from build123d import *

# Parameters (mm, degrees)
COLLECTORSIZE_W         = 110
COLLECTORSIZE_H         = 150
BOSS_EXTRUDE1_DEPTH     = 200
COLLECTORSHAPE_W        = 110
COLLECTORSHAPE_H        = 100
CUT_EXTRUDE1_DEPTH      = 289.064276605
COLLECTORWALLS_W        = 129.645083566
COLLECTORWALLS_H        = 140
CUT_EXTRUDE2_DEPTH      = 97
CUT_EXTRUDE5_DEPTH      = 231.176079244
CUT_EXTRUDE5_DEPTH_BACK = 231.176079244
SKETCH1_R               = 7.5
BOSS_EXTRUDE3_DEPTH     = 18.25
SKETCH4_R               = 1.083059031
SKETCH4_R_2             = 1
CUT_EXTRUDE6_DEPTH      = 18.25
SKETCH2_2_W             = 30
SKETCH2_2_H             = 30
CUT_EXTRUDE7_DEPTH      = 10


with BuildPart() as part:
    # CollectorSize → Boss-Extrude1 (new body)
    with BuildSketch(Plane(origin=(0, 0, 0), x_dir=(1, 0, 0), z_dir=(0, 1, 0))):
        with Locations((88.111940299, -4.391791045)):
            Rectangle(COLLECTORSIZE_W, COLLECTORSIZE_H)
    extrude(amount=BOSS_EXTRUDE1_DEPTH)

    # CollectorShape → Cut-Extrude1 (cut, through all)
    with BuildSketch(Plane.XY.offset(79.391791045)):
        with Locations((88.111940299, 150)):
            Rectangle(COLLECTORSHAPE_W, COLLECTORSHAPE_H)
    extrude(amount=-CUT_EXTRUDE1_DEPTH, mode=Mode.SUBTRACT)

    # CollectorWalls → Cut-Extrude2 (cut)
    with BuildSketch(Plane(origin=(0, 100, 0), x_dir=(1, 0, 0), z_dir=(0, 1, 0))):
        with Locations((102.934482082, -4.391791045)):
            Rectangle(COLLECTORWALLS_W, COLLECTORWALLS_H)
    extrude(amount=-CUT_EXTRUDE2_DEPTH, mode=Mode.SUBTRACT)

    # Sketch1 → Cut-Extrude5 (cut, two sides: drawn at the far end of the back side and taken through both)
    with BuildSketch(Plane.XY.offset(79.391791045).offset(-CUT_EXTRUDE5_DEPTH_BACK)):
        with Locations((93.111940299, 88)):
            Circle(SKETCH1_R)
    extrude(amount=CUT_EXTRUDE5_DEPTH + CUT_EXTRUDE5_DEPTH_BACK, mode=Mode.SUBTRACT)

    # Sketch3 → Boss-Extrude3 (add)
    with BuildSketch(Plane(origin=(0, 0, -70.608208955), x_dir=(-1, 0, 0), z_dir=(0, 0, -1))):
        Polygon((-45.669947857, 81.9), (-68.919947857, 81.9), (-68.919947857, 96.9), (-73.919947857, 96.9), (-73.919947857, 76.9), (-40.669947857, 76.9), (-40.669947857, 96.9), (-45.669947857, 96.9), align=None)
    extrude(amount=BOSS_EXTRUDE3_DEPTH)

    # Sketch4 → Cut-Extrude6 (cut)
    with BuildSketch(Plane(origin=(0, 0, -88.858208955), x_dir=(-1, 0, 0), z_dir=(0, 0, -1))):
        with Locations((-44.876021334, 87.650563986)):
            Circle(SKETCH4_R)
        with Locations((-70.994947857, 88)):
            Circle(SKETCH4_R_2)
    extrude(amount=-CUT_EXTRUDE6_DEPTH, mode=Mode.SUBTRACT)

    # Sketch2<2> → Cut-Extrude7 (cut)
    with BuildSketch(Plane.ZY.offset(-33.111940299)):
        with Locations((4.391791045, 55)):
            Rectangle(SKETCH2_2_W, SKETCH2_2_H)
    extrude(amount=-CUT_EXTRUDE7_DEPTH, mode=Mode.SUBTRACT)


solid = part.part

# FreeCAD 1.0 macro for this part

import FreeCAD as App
import Part
import Sketcher
from FreeCAD import Vector
Q = App.Units.Quantity


def add_polygon(sketch, points):
    """Adds a closed chain of lines whose ends are joined by coincident constraints."""
    first, n = sketch.GeometryCount, len(points)
    for a, b in zip(points, points[1:] + points[:1]):
        sketch.addGeometry(Part.LineSegment(App.Vector(*a, 0), App.Vector(*b, 0)), False)
    for i in range(n):
        sketch.addConstraint(Sketcher.Constraint("Coincident", first + i, 2, first + (i + 1) % n, 1))

doc = App.newDocument("Part")
body = doc.addObject("PartDesign::Body", "Body")

# Sketch on XZ plane
sketch1 = body.newObject("Sketcher::SketchObject", "Sketch")
sketch1.AttachmentSupport = (doc.getObject("XZ_Plane"), [""])
sketch1.MapMode = "FlatFace"
add_polygon(sketch1, [(33, -71), (33, 79), (143, 79), (143, -71)])  # lines 0-3
sketch1.addConstraint([
    Sketcher.Constraint("Vertical", 0),
    Sketcher.Constraint("Horizontal", 1),
    Sketcher.Constraint("Vertical", 2),
    Sketcher.Constraint("Horizontal", 3),
    Sketcher.Constraint("DistanceX", 1, 1, 1, 2, Q("110 mm")),
    Sketcher.Constraint("DistanceY", 0, 1, 0, 2, Q("150 mm")),
    Sketcher.Constraint("DistanceX", -1, 1, 0, 2, Q("33.11194 mm")),
    Sketcher.Constraint("DistanceY", -1, 1, 0, 2, Q("79.391791 mm")),
])
pad1 = body.newObject("PartDesign::Pad", "Pad")
pad1.Profile = sketch1
pad1.Length = 200
pad1.Reversed = True

# Sketch on XY plane
sketch2 = body.newObject("Sketcher::SketchObject", "Sketch001")
sketch2.AttachmentSupport = (doc.getObject("XY_Plane"), [""])
sketch2.MapMode = "FlatFace"
sketch2.AttachmentOffset = App.Placement(Vector(0, 0, 79.391791), App.Rotation())
add_polygon(sketch2, [(33, 200), (33, 100), (143, 100), (143, 200)])  # lines 0-3
sketch2.addConstraint([
    Sketcher.Constraint("Vertical", 0),
    Sketcher.Constraint("Horizontal", 1),
    Sketcher.Constraint("Vertical", 2),
    Sketcher.Constraint("Horizontal", 3),
    Sketcher.Constraint("DistanceX", 1, 1, 1, 2, Q("110 mm")),
    Sketcher.Constraint("DistanceY", 0, 2, 0, 1, Q("100 mm")),
    Sketcher.Constraint("DistanceY", -1, 1, 0, 2, Q("100 mm")),
    Sketcher.Constraint("DistanceX", -1, 1, 0, 2, Q("33.11194 mm")),
])
pocket1 = body.newObject("PartDesign::Pocket", "Pocket")
pocket1.Profile = sketch2
pocket1.Type = "ThroughAll"

# Sketch on XZ plane
sketch3 = body.newObject("Sketcher::SketchObject", "Sketch002")
sketch3.AttachmentSupport = (doc.getObject("XZ_Plane"), [""])
sketch3.MapMode = "FlatFace"
sketch3.AttachmentOffset = App.Placement(Vector(0, 0, -100), App.Rotation())
add_polygon(sketch3, [(38, -66), (38, 74), (168, 74), (168, -66)])  # lines 0-3
sketch3.addConstraint([
    Sketcher.Constraint("Vertical", 0),
    Sketcher.Constraint("Horizontal", 1),
    Sketcher.Constraint("Vertical", 2),
    Sketcher.Constraint("Horizontal", 3),
    Sketcher.Constraint("DistanceY", 0, 1, 0, 2, Q("140 mm")),
    Sketcher.Constraint("DistanceX", 1, 1, 1, 2, Q("129.645084 mm")),
    Sketcher.Constraint("DistanceX", -1, 1, 0, 2, Q("38.11194 mm")),
    Sketcher.Constraint("DistanceY", -1, 1, 0, 2, Q("74.391791 mm")),
])
pocket2 = body.newObject("PartDesign::Pocket", "Pocket001")
pocket2.Profile = sketch3
pocket2.Length = 97
pocket2.Reversed = True

# Sketch on XY plane
sketch4 = body.newObject("Sketcher::SketchObject", "Sketch003")
sketch4.AttachmentSupport = (doc.getObject("XY_Plane"), [""])
sketch4.MapMode = "FlatFace"
sketch4.AttachmentOffset = App.Placement(Vector(0, 0, 79.391791), App.Rotation())
sketch4.addGeometry(Part.Circle(Vector(93, 88, 0), Vector(0, 0, 1), 8), False)
sketch4.addConstraint([
    Sketcher.Constraint("Diameter", 0, Q("15 mm")),
    Sketcher.Constraint("DistanceY", -1, 1, 0, 3, Q("88 mm")),
    Sketcher.Constraint("DistanceX", -1, 1, 0, 3, Q("93.11194 mm")),
])
pocket3 = body.newObject("PartDesign::Pocket", "Pocket002")
pocket3.Profile = sketch4
pocket3.Type = "ThroughAll"
pocket3.Midplane = True

# Sketch on XY plane
sketch5 = body.newObject("Sketcher::SketchObject", "Sketch004")
sketch5.AttachmentSupport = (doc.getObject("XY_Plane"), [""])
sketch5.MapMode = "FlatFace"
sketch5.AttachmentOffset = App.Placement(Vector(0, 0, -70.608209), App.Rotation())
add_polygon(sketch5, [(46, 82), (69, 82), (69, 97), (74, 97), (74, 77), (41, 77), (41, 97), (46, 97)])  # lines 0-7
sketch5.addConstraint([
    Sketcher.Constraint("Horizontal", 0),
    Sketcher.Constraint("Vertical", 1),
    Sketcher.Constraint("Horizontal", 2),
    Sketcher.Constraint("Vertical", 3),
    Sketcher.Constraint("Horizontal", 4),
    Sketcher.Constraint("Vertical", 5),
    Sketcher.Constraint("Horizontal", 6),
    Sketcher.Constraint("Vertical", 7),
    Sketcher.Constraint("Horizontal", 2, 2, 5, 2),
    Sketcher.Constraint("Equal", 2, 6),
    Sketcher.Constraint("DistanceX", 2, 1, 2, 2, Q("5 mm")),
    Sketcher.Constraint("DistanceY", 1, 1, 1, 2, Q("15 mm")),
    Sketcher.Constraint("DistanceY", 3, 2, 3, 1, Q("20 mm")),
    Sketcher.Constraint("DistanceX", 0, 1, 0, 2, Q("23.25 mm")),
    Sketcher.Constraint("DistanceY", -1, 1, 0, 2, Q("81.9 mm")),
    Sketcher.Constraint("DistanceX", -1, 1, 0, 2, Q("68.919948 mm")),
])
pad2 = body.newObject("PartDesign::Pad", "Pad001")
pad2.Profile = sketch5
pad2.Length = 18.25
pad2.Reversed = True

# Sketch on XY plane
sketch6 = body.newObject("Sketcher::SketchObject", "Sketch005")
sketch6.AttachmentSupport = (doc.getObject("XY_Plane"), [""])
sketch6.MapMode = "FlatFace"
sketch6.AttachmentOffset = App.Placement(Vector(0, 0, -88.858209), App.Rotation())
sketch6.addGeometry([
    Part.Circle(Vector(44.9, 87.7, 0), Vector(0, 0, 1), 1.1),
    Part.Circle(Vector(71, 88, 0), Vector(0, 0, 1), 1),
], False)
sketch6.addConstraint([
    Sketcher.Constraint("Diameter", 1, Q("2 mm")),
    Sketcher.Constraint("DistanceY", -1, 1, 1, 3, Q("88 mm")),
    Sketcher.Constraint("Diameter", 0, Q("2.166118 mm")),
    Sketcher.Constraint("DistanceX", -1, 1, 0, 3, Q("44.876021 mm")),
    Sketcher.Constraint("DistanceY", -1, 1, 0, 3, Q("87.650564 mm")),
    Sketcher.Constraint("DistanceX", -1, 1, 1, 3, Q("70.994948 mm")),
])
pocket4 = body.newObject("PartDesign::Pocket", "Pocket003")
pocket4.Profile = sketch6
pocket4.Length = 18.25
pocket4.Reversed = True

# Sketch on YZ plane
sketch7 = body.newObject("Sketcher::SketchObject", "Sketch006")
sketch7.AttachmentSupport = (doc.getObject("YZ_Plane"), [""])
sketch7.MapMode = "FlatFace"
sketch7.AttachmentOffset = App.Placement(Vector(0, 0, 33.11194), App.Rotation())
add_polygon(sketch7, [(70, -11), (40, -11), (40, 19), (70, 19)])  # lines 0-3
sketch7.addConstraint([
    Sketcher.Constraint("Horizontal", 0),
    Sketcher.Constraint("Vertical", 1),
    Sketcher.Constraint("Horizontal", 2),
    Sketcher.Constraint("Vertical", 3),
    Sketcher.Constraint("Equal", 2, 1),
    Sketcher.Constraint("DistanceX", 0, 2, 0, 1, Q("30 mm")),
    Sketcher.Constraint("DistanceX", -1, 1, 0, 2, Q("40 mm")),
    Sketcher.Constraint("DistanceY", 0, 2, -1, 1, Q("10.608209 mm")),
])
pocket5 = body.newObject("PartDesign::Pocket", "Pocket004")
pocket5.Profile = sketch7
pocket5.Length = 10
pocket5.Reversed = True

doc.recompute()
